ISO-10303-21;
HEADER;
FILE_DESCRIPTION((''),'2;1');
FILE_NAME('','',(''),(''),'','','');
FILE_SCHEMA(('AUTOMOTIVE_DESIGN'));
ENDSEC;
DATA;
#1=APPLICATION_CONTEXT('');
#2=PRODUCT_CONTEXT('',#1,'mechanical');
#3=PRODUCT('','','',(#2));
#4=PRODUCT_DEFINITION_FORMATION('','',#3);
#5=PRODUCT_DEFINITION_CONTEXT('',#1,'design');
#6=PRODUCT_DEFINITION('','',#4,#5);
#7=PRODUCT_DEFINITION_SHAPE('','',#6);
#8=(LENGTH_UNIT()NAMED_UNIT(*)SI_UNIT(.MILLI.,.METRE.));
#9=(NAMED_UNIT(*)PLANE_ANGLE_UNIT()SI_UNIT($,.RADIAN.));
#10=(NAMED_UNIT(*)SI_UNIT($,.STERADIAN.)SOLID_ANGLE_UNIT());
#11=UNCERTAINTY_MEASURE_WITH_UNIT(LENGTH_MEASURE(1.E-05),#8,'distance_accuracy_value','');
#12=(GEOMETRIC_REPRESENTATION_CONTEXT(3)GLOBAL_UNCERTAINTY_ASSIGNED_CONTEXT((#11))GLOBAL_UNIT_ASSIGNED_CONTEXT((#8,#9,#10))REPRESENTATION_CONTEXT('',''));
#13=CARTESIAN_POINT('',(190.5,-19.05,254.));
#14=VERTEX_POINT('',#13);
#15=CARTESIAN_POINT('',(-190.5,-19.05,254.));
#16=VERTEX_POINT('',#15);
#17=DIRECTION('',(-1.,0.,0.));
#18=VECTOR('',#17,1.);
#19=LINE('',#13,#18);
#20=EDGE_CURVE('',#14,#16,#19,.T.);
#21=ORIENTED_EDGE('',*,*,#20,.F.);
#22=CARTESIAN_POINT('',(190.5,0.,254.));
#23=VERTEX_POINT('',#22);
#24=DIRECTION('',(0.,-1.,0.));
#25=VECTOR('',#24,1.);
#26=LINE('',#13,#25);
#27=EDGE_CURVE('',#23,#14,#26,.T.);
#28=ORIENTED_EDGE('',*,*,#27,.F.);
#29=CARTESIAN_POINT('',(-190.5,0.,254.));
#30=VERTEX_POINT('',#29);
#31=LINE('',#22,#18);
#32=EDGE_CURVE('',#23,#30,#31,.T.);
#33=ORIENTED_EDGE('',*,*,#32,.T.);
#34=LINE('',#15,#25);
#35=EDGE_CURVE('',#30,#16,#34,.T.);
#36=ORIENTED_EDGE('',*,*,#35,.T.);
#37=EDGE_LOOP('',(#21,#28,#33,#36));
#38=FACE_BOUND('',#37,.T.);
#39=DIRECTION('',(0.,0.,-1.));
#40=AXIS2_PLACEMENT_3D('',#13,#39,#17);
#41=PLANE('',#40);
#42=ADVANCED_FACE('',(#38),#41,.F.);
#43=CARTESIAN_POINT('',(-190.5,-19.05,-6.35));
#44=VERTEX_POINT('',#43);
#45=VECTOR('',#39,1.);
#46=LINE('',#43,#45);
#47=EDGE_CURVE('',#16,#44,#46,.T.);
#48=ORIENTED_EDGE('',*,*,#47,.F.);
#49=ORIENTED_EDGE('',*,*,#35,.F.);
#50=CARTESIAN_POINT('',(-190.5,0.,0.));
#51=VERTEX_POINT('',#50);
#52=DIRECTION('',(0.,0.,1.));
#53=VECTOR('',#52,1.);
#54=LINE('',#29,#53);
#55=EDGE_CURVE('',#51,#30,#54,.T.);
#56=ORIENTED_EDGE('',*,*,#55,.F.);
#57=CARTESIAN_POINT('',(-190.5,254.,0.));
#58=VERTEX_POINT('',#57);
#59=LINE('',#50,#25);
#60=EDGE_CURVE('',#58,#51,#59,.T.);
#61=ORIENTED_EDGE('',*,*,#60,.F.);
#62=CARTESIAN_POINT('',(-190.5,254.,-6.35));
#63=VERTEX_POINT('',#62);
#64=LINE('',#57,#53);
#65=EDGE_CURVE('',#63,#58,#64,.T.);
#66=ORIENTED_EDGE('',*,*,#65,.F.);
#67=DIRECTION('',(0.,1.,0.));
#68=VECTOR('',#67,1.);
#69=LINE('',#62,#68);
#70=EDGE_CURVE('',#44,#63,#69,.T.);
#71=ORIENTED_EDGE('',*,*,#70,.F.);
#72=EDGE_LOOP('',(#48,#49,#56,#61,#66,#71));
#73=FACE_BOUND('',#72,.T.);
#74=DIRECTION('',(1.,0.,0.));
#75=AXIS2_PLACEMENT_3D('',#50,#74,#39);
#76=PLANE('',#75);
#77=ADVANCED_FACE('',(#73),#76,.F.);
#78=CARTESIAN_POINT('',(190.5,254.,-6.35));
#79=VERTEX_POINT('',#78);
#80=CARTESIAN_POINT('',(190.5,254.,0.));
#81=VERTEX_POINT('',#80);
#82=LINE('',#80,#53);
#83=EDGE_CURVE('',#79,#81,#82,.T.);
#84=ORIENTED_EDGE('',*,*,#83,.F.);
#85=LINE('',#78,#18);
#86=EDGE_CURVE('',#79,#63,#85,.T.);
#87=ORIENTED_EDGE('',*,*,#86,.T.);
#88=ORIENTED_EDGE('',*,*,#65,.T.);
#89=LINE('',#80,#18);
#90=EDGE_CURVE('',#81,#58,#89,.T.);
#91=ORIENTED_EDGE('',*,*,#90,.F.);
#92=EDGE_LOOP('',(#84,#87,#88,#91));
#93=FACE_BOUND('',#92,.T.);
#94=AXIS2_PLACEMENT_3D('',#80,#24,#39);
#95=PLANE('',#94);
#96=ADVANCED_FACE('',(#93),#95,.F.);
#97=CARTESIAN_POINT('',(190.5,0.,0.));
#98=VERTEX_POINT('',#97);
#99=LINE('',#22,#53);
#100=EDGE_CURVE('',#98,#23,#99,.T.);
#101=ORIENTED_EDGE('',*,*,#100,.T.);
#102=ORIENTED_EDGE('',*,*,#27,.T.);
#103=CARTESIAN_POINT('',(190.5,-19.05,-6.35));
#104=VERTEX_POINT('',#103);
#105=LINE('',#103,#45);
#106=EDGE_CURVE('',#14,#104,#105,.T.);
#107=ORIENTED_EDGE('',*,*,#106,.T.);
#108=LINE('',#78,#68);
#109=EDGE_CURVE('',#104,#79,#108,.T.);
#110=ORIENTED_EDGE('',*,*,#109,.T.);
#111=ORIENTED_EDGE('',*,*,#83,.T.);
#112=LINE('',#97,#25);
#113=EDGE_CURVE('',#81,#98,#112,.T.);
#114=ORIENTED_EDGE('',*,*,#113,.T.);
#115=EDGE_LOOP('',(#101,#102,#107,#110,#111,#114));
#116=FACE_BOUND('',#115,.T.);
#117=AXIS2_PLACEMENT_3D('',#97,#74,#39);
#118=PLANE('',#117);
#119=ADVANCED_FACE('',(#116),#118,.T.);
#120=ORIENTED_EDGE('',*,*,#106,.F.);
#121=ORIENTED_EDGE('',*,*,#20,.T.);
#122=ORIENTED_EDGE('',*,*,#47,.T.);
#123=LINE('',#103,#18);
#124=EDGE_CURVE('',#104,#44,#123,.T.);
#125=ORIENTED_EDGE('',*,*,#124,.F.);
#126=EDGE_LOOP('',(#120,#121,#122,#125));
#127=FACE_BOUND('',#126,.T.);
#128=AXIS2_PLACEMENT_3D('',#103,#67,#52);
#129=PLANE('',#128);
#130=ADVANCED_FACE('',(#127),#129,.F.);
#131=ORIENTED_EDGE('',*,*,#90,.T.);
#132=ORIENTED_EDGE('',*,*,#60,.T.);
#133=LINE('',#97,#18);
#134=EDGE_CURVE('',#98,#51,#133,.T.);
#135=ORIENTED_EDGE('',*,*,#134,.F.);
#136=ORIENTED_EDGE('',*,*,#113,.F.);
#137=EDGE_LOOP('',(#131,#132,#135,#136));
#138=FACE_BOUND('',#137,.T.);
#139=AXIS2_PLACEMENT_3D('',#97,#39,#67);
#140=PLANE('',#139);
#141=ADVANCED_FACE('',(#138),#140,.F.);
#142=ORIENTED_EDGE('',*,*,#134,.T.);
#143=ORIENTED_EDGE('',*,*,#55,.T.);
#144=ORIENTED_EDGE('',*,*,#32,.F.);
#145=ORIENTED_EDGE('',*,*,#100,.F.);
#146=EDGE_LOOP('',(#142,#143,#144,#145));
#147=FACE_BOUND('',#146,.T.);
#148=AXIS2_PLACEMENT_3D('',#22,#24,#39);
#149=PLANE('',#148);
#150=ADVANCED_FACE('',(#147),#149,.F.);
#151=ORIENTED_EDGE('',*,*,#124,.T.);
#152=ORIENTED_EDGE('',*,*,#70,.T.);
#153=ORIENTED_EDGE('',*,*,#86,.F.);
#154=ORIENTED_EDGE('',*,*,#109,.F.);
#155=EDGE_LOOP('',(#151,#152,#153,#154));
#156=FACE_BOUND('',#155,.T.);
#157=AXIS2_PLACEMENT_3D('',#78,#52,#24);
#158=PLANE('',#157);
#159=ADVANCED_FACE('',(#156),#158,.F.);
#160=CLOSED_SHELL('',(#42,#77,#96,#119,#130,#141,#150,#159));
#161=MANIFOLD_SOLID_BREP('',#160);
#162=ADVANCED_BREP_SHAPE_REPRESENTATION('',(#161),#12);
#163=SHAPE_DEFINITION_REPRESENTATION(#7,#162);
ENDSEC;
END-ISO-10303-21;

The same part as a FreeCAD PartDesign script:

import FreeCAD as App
import Part
import Sketcher
Q = App.Units.Quantity

doc = App.newDocument("Part")
params = doc.addObject("Spreadsheet::Sheet", "Params")
for row, (alias, value) in enumerate([
    ("sketch1_width", "10 in"),
    ("sketch1_width2", "0.75 in"),
    ("sketch1_height", "10.25 in"),
    ("pad1_length", "15 in"),
], start=1):
    params.set(f"A{row}", alias)
    params.set(f"B{row}", "=" + value)
    params.setAlias(f"B{row}", alias)

body = doc.addObject("PartDesign::Body", "Body")

# Sketch on YZ plane
sketch1 = body.newObject("Sketcher::SketchObject", "Sketch")
sketch1.AttachmentSupport = (doc.getObject("YZ_Plane"), [""])
sketch1.MapMode = "FlatFace"
sketch1.addGeometry([
    Part.LineSegment(App.Vector(254, 0, 0), App.Vector(0, 0, 0)),  # 0
    Part.LineSegment(App.Vector(0, 0, 0), App.Vector(0, 254, 0)),  # 1
    Part.LineSegment(App.Vector(0, 254, 0), App.Vector(-19, 254, 0)),  # 2
    Part.LineSegment(App.Vector(-19, 254, 0), App.Vector(-19, -6, 0)),  # 3
    Part.LineSegment(App.Vector(-19, -6, 0), App.Vector(254, -6, 0)),  # 4
    Part.LineSegment(App.Vector(254, -6, 0), App.Vector(254, 0, 0)),  # 5
], False)
sketch1.addConstraint([
    Sketcher.Constraint("Coincident", 0, 2, 1, 1),
    Sketcher.Constraint("Coincident", 1, 2, 2, 1),
    Sketcher.Constraint("Coincident", 2, 2, 3, 1),
    Sketcher.Constraint("Coincident", 3, 2, 4, 1),
    Sketcher.Constraint("Coincident", 4, 2, 5, 1),
    Sketcher.Constraint("Coincident", 5, 2, 0, 1),
    Sketcher.Constraint("Horizontal", 0),
    Sketcher.Constraint("Vertical", 1),
    Sketcher.Constraint("Horizontal", 2),
    Sketcher.Constraint("Vertical", 3),
    Sketcher.Constraint("Horizontal", 4),
    Sketcher.Constraint("Vertical", 5),
    Sketcher.Constraint("Coincident", 0, 2, -1, 1),
    Sketcher.Constraint("Equal", 0, 1),
    Sketcher.Constraint("DistanceX", 0, 2, 0, 1, Q("10 in")),
    Sketcher.Constraint("DistanceX", 2, 2, 2, 1, Q("0.75 in")),
    Sketcher.Constraint("DistanceY", 3, 2, 3, 1, Q("10.25 in")),
])
sketch1.setExpression("Constraints[14]", "Params.sketch1_width")
sketch1.setExpression("Constraints[15]", "Params.sketch1_width2")
sketch1.setExpression("Constraints[16]", "Params.sketch1_height")
pad1 = body.newObject("PartDesign::Pad", "Pad")
pad1.Profile = sketch1
pad1.setExpression("Length", "Params.pad1_length")
pad1.Midplane = True

doc.recompute()
